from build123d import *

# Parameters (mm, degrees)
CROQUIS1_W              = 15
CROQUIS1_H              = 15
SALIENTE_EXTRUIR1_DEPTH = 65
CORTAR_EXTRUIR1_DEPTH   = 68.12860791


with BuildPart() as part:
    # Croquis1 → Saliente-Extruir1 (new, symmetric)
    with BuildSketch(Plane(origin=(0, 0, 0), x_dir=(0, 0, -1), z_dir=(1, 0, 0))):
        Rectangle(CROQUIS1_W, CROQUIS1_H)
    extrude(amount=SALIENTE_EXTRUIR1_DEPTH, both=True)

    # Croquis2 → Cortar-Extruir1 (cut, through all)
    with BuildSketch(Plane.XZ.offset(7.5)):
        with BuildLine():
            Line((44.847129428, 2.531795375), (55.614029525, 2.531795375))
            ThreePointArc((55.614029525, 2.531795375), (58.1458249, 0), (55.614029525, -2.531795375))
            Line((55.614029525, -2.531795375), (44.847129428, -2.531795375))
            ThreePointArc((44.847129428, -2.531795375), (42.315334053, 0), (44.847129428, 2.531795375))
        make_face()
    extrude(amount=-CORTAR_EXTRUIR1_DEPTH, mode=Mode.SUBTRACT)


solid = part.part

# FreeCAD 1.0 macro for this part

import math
import FreeCAD as App
import Part
import Sketcher
Q = App.Units.Quantity

doc = App.newDocument("Part")
body = doc.addObject("PartDesign::Body", "Body")

# Sketch on YZ plane
sketch1 = doc.addObject("Sketcher::SketchObject", "Sketch")
body.addObject(sketch1)
sketch1.AttachmentSupport = (doc.YZ_Plane, [""])
sketch1.MapMode = "FlatFace"
sketch1.addGeometry(Part.LineSegment(App.Vector(8, 8, 0), App.Vector(-8, 8, 0)), False)
sketch1.addGeometry(Part.LineSegment(App.Vector(-8, 8, 0), App.Vector(-8, -8, 0)), False)
sketch1.addGeometry(Part.LineSegment(App.Vector(-8, -8, 0), App.Vector(8, -8, 0)), False)
sketch1.addGeometry(Part.LineSegment(App.Vector(8, -8, 0), App.Vector(8, 8, 0)), False)
sketch1.addConstraint(Sketcher.Constraint("Coincident", 0, 2, 1, 1))
sketch1.addConstraint(Sketcher.Constraint("Coincident", 1, 2, 2, 1))
sketch1.addConstraint(Sketcher.Constraint("Coincident", 2, 2, 3, 1))
sketch1.addConstraint(Sketcher.Constraint("Coincident", 3, 2, 0, 1))
sketch1.addConstraint(Sketcher.Constraint("Horizontal", 0))
sketch1.addConstraint(Sketcher.Constraint("Vertical", 1))
sketch1.addConstraint(Sketcher.Constraint("Horizontal", 2))
sketch1.addConstraint(Sketcher.Constraint("Vertical", 3))
sketch1.addConstraint(Sketcher.Constraint("Symmetric", 0, 2, 2, 2, -1, 1))
sketch1.addConstraint(Sketcher.Constraint("Equal", 2, 1))
sketch1.addConstraint(Sketcher.Constraint("DistanceX", 0, 2, 0, 1, Q("15 mm")))
pad1 = doc.addObject("PartDesign::Pad", "Pad")
body.addObject(pad1)
pad1.Profile = sketch1
pad1.Length = 130
pad1.Midplane = True

# Sketch on XZ plane
sketch2 = doc.addObject("Sketcher::SketchObject", "Sketch001")
body.addObject(sketch2)
sketch2.AttachmentSupport = (doc.XZ_Plane, [""])
sketch2.MapMode = "FlatFace"
sketch2.AttachmentOffset = App.Placement(App.Vector(0, 0, 7.5), App.Rotation())
sketch2.addGeometry(Part.LineSegment(App.Vector(55.6, 2.5, 0), App.Vector(44.8, 2.5, 0)), False)
sketch2.addGeometry(Part.ArcOfCircle(Part.Circle(App.Vector(44.8, 0, 0), App.Vector(0, 0, 1), 2.5), math.radians(90), math.radians(270)), False)
sketch2.addGeometry(Part.LineSegment(App.Vector(44.8, -2.5, 0), App.Vector(55.6, -2.5, 0)), False)
sketch2.addGeometry(Part.ArcOfCircle(Part.Circle(App.Vector(55.6, 0, 0), App.Vector(0, 0, 1), 2.5), math.radians(-90), math.radians(90)), False)
sketch2.addConstraint(Sketcher.Constraint("Tangent", 0, 2, 1, 1))
sketch2.addConstraint(Sketcher.Constraint("Tangent", 1, 2, 2, 1))
sketch2.addConstraint(Sketcher.Constraint("Tangent", 2, 2, 3, 1))
sketch2.addConstraint(Sketcher.Constraint("Tangent", 3, 2, 0, 1))
sketch2.addConstraint(Sketcher.Constraint("Horizontal", 0))
sketch2.addConstraint(Sketcher.Constraint("Horizontal", 2))
sketch2.addConstraint(Sketcher.Constraint("PointOnObject", 1, 3, -1))
sketch2.addConstraint(Sketcher.Constraint("DistanceX", 0, 2, 0, 1, Q("10.7669 mm")))
sketch2.addConstraint(Sketcher.Constraint("Radius", 1, Q("2.531795 mm")))
sketch2.addConstraint(Sketcher.Constraint("DistanceX", -1, 1, 1, 3, Q("44.847129 mm")))
pocket1 = doc.addObject("PartDesign::Pocket", "Pocket")
body.addObject(pocket1)
pocket1.Profile = sketch2
pocket1.Type = "ThroughAll"

doc.recompute()
